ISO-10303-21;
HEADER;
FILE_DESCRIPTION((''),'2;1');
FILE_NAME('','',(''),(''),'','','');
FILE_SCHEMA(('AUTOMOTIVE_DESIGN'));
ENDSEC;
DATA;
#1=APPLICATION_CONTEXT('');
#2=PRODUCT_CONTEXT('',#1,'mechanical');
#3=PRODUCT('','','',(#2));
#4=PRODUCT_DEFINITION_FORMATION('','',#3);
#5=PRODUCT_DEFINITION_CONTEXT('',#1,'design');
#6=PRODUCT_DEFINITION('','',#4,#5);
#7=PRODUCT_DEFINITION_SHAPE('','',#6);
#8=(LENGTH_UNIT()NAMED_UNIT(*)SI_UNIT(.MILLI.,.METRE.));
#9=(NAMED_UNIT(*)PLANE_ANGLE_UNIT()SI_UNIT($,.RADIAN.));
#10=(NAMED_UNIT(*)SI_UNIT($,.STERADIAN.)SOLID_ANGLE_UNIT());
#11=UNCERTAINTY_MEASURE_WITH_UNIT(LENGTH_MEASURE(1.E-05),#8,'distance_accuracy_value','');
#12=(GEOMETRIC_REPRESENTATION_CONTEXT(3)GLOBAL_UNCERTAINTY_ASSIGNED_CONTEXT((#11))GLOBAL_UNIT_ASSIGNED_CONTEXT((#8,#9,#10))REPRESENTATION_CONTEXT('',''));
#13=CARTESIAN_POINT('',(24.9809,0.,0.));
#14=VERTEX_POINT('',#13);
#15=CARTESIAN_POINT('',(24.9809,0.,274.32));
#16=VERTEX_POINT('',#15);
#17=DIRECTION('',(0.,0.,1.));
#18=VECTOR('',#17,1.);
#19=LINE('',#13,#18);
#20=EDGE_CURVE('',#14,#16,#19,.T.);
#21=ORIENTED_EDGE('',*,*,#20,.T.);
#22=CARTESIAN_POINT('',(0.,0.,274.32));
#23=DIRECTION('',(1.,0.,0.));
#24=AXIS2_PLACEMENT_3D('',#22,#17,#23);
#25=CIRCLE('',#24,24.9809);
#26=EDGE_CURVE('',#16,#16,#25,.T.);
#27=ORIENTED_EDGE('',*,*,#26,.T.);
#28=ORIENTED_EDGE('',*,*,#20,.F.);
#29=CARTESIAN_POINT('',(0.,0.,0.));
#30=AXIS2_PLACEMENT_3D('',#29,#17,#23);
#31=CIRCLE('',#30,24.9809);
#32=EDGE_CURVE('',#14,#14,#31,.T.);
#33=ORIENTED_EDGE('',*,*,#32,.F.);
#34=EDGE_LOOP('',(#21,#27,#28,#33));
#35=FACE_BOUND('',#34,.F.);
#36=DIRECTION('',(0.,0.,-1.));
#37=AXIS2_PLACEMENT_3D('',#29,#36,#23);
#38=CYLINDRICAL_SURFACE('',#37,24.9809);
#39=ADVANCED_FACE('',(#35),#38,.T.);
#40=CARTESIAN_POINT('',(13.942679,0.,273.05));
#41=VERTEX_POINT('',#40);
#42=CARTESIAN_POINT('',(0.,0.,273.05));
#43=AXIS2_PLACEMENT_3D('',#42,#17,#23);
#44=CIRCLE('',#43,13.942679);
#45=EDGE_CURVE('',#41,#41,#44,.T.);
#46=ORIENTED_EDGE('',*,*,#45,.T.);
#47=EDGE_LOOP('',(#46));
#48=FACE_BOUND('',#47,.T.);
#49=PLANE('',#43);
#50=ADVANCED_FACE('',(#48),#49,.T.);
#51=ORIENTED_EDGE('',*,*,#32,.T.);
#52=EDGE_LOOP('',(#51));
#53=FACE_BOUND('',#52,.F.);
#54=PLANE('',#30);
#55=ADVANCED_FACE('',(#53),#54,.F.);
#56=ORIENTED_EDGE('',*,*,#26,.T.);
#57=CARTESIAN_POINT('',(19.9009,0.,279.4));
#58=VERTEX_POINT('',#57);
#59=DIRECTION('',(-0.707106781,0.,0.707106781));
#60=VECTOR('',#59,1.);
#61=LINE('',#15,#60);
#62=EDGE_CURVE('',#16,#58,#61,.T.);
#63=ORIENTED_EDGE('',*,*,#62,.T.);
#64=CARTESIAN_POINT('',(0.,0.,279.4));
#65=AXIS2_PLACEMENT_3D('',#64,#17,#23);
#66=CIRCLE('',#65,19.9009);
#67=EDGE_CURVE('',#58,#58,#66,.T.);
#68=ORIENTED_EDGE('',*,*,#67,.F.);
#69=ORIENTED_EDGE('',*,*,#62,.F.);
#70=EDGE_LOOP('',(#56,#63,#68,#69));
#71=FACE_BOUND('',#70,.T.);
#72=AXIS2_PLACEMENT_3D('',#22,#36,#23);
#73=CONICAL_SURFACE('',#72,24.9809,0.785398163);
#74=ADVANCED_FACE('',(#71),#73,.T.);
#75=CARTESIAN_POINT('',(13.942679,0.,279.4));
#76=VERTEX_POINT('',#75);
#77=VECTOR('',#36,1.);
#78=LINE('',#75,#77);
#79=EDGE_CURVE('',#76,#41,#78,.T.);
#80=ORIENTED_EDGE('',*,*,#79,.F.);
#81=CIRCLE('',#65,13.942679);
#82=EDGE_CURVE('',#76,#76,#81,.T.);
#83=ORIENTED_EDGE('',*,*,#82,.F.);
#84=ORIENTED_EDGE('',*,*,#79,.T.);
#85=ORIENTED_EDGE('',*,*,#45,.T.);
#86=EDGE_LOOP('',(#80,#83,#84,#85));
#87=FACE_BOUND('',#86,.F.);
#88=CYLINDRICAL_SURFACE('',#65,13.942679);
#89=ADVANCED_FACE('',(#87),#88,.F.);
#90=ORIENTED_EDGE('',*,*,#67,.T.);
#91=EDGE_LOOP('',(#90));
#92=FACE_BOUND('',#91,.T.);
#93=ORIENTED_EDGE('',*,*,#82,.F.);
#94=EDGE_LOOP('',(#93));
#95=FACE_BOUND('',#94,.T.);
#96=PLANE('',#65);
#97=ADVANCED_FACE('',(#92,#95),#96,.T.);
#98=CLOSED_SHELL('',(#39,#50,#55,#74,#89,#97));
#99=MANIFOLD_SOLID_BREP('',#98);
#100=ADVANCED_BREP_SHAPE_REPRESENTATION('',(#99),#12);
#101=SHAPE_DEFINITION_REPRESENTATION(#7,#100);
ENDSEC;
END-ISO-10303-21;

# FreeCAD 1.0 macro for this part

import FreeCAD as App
import Part
import Sketcher

V = App.Vector
Q = App.Units.Quantity


def edges_at(feature, points):
    """Names of the edges that pass closest to the given points."""
    edges = feature.Shape.Edges
    near = lambda p: min(range(len(edges)), key=lambda i: edges[i].distToShape(Part.Vertex(*p))[0])
    return sorted({f"Edge{near(p) + 1}" for p in points})

doc = App.newDocument("Part")
body = doc.addObject("PartDesign::Body", "Body")

# Sketch on XY plane
sketch1 = body.newObject("Sketcher::SketchObject", "Sketch")
sketch1.AttachmentSupport = (doc.getObject("XY_Plane"), [""])
sketch1.MapMode = "FlatFace"
sketch1.addGeometry(Part.Circle(V(0, 0, 0), V(0, 0, 1), 25), False)
sketch1.addConstraint([
    Sketcher.Constraint("Coincident", 0, 3, -1, 1),
    Sketcher.Constraint("Diameter", 0, Q("1.967 in")),
])
pad1 = body.newObject("PartDesign::Pad", "Pad")
pad1.Profile = sketch1
pad1.Length = Q("11 in")
doc.recompute()

chamfer = body.newObject("PartDesign::Chamfer", "Chamfer")
chamfer.Base = (pad1, edges_at(pad1, [(-24.981, 0, 279.4)]))
chamfer.Size = Q("0.2 in")

# Sketch on XY plane
sketch2 = body.newObject("Sketcher::SketchObject", "Sketch001")
sketch2.AttachmentSupport = (doc.getObject("XY_Plane"), [""])
sketch2.MapMode = "FlatFace"
sketch2.AttachmentOffset = App.Placement(V(0, 0, 11 * 25.4), App.Rotation())
sketch2.addGeometry(Part.Circle(V(0, 0, 0), V(0, 0, 1), 14), False)
sketch2.addConstraint([
    Sketcher.Constraint("Coincident", 0, 3, -1, 1),
    Sketcher.Constraint("Diameter", 0, Q("27.885358 mm")),
])
pocket1 = body.newObject("PartDesign::Pocket", "Pocket")
pocket1.Profile = sketch2
pocket1.Length = Q("0.25 in")

doc.recompute()
